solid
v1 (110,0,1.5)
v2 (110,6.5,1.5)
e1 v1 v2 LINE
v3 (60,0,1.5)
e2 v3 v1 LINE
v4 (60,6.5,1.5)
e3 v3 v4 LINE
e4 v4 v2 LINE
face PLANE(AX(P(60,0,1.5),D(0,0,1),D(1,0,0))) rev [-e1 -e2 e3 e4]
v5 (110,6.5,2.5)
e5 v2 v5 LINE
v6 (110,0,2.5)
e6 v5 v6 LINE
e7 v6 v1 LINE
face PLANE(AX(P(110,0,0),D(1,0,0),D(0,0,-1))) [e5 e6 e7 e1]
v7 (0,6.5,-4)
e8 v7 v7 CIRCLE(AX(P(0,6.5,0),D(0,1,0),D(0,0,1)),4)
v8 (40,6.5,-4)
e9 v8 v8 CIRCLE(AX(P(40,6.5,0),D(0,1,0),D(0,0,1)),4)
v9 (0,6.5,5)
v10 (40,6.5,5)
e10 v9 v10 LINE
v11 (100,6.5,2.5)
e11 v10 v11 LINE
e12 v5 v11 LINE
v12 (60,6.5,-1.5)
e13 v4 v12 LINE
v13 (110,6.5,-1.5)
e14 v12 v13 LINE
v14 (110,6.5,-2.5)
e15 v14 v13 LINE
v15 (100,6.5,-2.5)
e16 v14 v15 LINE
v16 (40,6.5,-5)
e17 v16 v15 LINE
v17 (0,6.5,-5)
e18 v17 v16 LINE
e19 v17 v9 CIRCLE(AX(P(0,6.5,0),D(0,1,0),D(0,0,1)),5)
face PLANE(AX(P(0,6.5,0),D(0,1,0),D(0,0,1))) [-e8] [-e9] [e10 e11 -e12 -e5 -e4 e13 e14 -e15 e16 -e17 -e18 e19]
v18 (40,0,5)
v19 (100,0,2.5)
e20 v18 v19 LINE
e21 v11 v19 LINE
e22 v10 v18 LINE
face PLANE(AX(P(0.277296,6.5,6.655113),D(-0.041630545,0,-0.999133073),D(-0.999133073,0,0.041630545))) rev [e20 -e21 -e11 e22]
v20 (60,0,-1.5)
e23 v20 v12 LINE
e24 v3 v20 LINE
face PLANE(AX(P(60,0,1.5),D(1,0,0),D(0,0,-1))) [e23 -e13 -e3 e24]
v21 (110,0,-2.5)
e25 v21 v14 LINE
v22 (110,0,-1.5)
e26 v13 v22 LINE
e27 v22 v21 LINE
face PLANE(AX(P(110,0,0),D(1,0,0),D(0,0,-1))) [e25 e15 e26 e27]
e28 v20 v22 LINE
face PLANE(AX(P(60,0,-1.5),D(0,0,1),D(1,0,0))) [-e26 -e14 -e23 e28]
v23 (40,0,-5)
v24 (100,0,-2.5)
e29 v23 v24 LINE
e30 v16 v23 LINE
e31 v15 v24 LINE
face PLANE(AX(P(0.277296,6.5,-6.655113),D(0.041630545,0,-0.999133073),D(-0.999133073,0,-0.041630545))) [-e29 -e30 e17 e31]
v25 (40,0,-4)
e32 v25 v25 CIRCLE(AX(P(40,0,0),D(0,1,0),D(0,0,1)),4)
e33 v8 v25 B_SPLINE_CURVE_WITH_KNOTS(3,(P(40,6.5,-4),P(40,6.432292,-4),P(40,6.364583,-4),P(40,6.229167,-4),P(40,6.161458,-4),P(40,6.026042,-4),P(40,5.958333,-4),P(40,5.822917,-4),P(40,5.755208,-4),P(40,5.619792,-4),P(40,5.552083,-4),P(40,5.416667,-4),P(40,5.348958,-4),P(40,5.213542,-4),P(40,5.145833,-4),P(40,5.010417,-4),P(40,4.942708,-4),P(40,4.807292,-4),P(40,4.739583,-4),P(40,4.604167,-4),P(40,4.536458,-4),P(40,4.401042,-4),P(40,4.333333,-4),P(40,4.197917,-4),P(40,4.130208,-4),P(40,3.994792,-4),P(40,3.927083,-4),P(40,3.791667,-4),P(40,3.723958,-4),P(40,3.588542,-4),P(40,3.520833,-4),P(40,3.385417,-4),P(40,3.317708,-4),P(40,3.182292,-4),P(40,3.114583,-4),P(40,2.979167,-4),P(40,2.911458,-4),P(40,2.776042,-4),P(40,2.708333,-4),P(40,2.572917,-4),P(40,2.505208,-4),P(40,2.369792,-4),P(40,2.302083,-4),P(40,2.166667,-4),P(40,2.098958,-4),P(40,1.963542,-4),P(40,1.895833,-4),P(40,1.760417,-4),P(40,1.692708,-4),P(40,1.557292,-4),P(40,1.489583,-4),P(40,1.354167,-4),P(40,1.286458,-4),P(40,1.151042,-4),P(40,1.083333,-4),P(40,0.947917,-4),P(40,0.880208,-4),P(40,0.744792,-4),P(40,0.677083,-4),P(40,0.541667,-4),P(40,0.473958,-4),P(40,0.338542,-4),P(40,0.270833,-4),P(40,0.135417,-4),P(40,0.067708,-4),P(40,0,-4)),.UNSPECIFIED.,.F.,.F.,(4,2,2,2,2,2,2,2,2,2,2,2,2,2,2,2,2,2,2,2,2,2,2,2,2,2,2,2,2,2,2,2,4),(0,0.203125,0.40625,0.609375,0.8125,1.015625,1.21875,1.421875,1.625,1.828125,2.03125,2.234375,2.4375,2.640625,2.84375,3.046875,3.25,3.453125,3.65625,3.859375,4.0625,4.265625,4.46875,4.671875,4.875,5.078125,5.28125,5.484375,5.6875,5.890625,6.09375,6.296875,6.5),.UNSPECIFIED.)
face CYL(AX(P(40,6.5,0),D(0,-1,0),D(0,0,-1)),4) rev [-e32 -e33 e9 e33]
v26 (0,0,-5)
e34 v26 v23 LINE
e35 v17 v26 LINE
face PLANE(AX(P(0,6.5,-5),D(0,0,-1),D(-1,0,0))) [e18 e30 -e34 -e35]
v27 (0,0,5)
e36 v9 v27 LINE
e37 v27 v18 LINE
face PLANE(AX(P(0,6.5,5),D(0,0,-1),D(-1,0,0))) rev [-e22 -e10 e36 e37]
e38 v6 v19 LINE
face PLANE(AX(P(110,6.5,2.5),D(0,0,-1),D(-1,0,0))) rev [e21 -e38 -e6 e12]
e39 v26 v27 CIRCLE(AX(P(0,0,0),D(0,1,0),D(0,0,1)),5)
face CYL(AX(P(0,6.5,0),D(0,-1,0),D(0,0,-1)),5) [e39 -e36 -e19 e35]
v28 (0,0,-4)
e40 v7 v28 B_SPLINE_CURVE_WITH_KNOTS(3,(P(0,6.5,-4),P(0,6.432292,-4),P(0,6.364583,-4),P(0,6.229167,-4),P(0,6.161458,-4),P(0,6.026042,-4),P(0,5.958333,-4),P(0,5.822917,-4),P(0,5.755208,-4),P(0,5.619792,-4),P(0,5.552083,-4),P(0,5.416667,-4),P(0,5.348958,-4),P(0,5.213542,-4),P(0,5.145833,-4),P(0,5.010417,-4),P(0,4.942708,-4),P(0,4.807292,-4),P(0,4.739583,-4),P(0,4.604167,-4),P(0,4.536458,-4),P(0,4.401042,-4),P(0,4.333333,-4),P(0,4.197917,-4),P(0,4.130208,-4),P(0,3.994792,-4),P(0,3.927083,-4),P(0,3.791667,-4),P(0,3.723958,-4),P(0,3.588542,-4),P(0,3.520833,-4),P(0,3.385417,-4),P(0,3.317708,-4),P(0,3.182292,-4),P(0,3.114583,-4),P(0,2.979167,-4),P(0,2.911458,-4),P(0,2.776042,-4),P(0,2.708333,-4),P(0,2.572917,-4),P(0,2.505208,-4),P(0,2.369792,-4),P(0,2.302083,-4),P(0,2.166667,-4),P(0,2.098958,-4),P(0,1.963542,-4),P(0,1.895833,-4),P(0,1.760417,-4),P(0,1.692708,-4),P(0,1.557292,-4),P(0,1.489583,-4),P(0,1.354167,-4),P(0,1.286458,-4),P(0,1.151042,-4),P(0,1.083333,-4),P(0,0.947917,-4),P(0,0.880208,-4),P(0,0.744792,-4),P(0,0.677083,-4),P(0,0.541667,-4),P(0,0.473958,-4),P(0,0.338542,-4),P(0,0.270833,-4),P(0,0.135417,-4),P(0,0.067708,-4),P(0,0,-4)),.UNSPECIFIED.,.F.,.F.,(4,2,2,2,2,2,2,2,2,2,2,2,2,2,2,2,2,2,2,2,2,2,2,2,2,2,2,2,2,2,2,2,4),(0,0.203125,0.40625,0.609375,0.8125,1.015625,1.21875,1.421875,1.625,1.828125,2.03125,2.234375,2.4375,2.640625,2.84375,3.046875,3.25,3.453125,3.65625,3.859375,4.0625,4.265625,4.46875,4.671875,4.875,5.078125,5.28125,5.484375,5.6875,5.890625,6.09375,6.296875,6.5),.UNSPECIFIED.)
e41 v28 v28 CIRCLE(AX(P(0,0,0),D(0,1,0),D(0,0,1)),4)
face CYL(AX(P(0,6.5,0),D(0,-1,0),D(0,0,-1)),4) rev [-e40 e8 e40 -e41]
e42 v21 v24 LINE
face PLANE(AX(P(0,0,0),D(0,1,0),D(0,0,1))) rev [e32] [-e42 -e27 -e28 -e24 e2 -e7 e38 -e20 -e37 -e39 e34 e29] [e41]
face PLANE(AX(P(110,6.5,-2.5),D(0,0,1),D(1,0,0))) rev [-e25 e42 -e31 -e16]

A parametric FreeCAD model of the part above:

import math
import FreeCAD as App
import Part
import Sketcher

V = App.Vector

doc = App.newDocument("Part")
body = doc.addObject("PartDesign::Body", "Body")

sketch1 = body.newObject("Sketcher::SketchObject", "Sketch")
sketch1.AttachmentSupport = (doc.getObject("XZ_Plane"), [""])
sketch1.MapMode = "FlatFace"
sketch1.addGeometry([
    Part.ArcOfCircle(Part.Circle(V(0, 0, 0), V(0, 0, 1), 5), math.radians(90), math.radians(270)),
    Part.LineSegment(V(0, 5, 0), V(40, 5, 0)),
    Part.LineSegment(V(40, 5, 0), V(100, 2.5, 0)),
    Part.LineSegment(V(100, 2.5, 0), V(100, -2.5, 0)),
    Part.LineSegment(V(100, -2.5, 0), V(40, -5, 0)),
    Part.LineSegment(V(40, -5, 0), V(0, -5, 0)),
    Part.Circle(V(0, 0, 0), V(0, 0, 1), 4),
    Part.Circle(V(40, 0, 0), V(0, 0, 1), 4),
], False)
sketch1.addConstraint([
    Sketcher.Constraint("Tangent", 0, 1, 1, 1),
    Sketcher.Constraint("Coincident", 1, 2, 2, 1),
    Sketcher.Constraint("Coincident", 2, 2, 3, 1),
    Sketcher.Constraint("Coincident", 3, 2, 4, 1),
    Sketcher.Constraint("Coincident", 4, 2, 5, 1),
    Sketcher.Constraint("Tangent", 5, 2, 0, 2),
    Sketcher.Constraint("Horizontal", 1),
    Sketcher.Constraint("Vertical", 3),
    Sketcher.Constraint("Horizontal", 5),
    Sketcher.Constraint("Coincident", 0, 3, -1, 1),
    Sketcher.Constraint("Coincident", 6, 3, -1, 1),
    Sketcher.Constraint("Equal", 6, 7),
    Sketcher.Constraint("PointOnObject", 7, 3, -1),
    Sketcher.Constraint("Vertical", 7, 3, 1, 2),
    Sketcher.Constraint("Vertical", 1, 2, 4, 2),
    Sketcher.Constraint("Equal", 2, 4),
    Sketcher.Constraint("Diameter", 6, 8.0),
    Sketcher.Constraint("Radius", 0, 5.0),
    Sketcher.Constraint("DistanceX", 1, 1, 1, 2, 40.0),
    Sketcher.Constraint("DistanceY", 3, 2, 3, 1, 5.0),
    Sketcher.Constraint("DistanceX", -1, 1, 2, 2, 100.0),
])
pad1 = body.newObject("PartDesign::Pad", "Pad")
pad1.Profile = sketch1
pad1.Length = 6.5
pad1.Reversed = True

sketch2 = body.newObject("Sketcher::SketchObject", "Sketch001")
sketch2.AttachmentSupport = (doc.getObject("XZ_Plane"), [""])
sketch2.MapMode = "FlatFace"
sketch2.AttachmentOffset = App.Placement(V(0, 0, -6.5), App.Rotation())
sketch2.addGeometry([
    Part.LineSegment(V(60, -1.5, 0), V(60, 1.5, 0)),
    Part.LineSegment(V(60, 1.5, 0), V(100, 1.5, 0)),
    Part.LineSegment(V(100, 1.5, 0), V(100, -1.5, 0)),
    Part.LineSegment(V(100, -1.5, 0), V(60, -1.5, 0)),
], False)
sketch2.addConstraint([
    Sketcher.Constraint("Coincident", 0, 2, 1, 1),
    Sketcher.Constraint("Coincident", 1, 2, 2, 1),
    Sketcher.Constraint("Coincident", 2, 2, 3, 1),
    Sketcher.Constraint("Coincident", 3, 2, 0, 1),
    Sketcher.Constraint("Vertical", 0),
    Sketcher.Constraint("Horizontal", 1),
    Sketcher.Constraint("Vertical", 2),
    Sketcher.Constraint("Horizontal", 3),
    Sketcher.Constraint("DistanceX", 1, 1, 1, 2, 40.0),
    Sketcher.Constraint("DistanceY", 0, 1, 0, 2, 3.0),
    Sketcher.Constraint("DistanceX", -1, 1, 0, 2, 60.0),
    Sketcher.Constraint("DistanceY", -1, 1, 0, 2, 1.5),
])
pocket1 = body.newObject("PartDesign::Pocket", "Pocket")
pocket1.Profile = sketch2
pocket1.Type = "ThroughAll"
pocket1.Reversed = True

sketch3 = body.newObject("Sketcher::SketchObject", "Sketch002")
sketch3.AttachmentSupport = (doc.getObject("YZ_Plane"), [""])
sketch3.MapMode = "FlatFace"
sketch3.AttachmentOffset = App.Placement(V(0, 0, 100), App.Rotation())
sketch3.addGeometry([
    Part.LineSegment(V(6.5, 2.5, 0), V(0, 2.5, 0)),
    Part.LineSegment(V(0, 2.5, 0), V(0, 1.5, 0)),
    Part.LineSegment(V(0, 1.5, 0), V(6.5, 1.5, 0)),
    Part.LineSegment(V(6.5, 1.5, 0), V(6.5, 2.5, 0)),
    Part.LineSegment(V(6.5, -1.5, 0), V(0, -1.5, 0)),
    Part.LineSegment(V(0, -1.5, 0), V(0, -2.5, 0)),
    Part.LineSegment(V(0, -2.5, 0), V(6.5, -2.5, 0)),
    Part.LineSegment(V(6.5, -2.5, 0), V(6.5, -1.5, 0)),
], False)
sketch3.addConstraint([
    Sketcher.Constraint("Coincident", 0, 2, 1, 1),
    Sketcher.Constraint("Coincident", 1, 2, 2, 1),
    Sketcher.Constraint("Coincident", 2, 2, 3, 1),
    Sketcher.Constraint("Coincident", 3, 2, 0, 1),
    Sketcher.Constraint("Coincident", 4, 2, 5, 1),
    Sketcher.Constraint("Coincident", 5, 2, 6, 1),
    Sketcher.Constraint("Coincident", 6, 2, 7, 1),
    Sketcher.Constraint("Coincident", 7, 2, 4, 1),
    Sketcher.Constraint("Horizontal", 0),
    Sketcher.Constraint("Vertical", 1),
    Sketcher.Constraint("Horizontal", 2),
    Sketcher.Constraint("Vertical", 3),
    Sketcher.Constraint("Horizontal", 4),
    Sketcher.Constraint("Vertical", 5),
    Sketcher.Constraint("Horizontal", 6),
    Sketcher.Constraint("Vertical", 7),
    Sketcher.Constraint("Symmetric", 1, 2, 4, 2, -1, 1),
    Sketcher.Constraint("Symmetric", 0, 2, 5, 2, -1),
    Sketcher.Constraint("Vertical", 3, 2, 6, 2),
    Sketcher.Constraint("DistanceY", 1, 2, 1, 1, 1.0),
    Sketcher.Constraint("DistanceX", 0, 2, 0, 1, 6.5),
    Sketcher.Constraint("DistanceY", 4, 2, 1, 2, 3.0),
])
pad2 = body.newObject("PartDesign::Pad", "Pad001")
pad2.Profile = sketch3
pad2.Length = 10

doc.recompute()
